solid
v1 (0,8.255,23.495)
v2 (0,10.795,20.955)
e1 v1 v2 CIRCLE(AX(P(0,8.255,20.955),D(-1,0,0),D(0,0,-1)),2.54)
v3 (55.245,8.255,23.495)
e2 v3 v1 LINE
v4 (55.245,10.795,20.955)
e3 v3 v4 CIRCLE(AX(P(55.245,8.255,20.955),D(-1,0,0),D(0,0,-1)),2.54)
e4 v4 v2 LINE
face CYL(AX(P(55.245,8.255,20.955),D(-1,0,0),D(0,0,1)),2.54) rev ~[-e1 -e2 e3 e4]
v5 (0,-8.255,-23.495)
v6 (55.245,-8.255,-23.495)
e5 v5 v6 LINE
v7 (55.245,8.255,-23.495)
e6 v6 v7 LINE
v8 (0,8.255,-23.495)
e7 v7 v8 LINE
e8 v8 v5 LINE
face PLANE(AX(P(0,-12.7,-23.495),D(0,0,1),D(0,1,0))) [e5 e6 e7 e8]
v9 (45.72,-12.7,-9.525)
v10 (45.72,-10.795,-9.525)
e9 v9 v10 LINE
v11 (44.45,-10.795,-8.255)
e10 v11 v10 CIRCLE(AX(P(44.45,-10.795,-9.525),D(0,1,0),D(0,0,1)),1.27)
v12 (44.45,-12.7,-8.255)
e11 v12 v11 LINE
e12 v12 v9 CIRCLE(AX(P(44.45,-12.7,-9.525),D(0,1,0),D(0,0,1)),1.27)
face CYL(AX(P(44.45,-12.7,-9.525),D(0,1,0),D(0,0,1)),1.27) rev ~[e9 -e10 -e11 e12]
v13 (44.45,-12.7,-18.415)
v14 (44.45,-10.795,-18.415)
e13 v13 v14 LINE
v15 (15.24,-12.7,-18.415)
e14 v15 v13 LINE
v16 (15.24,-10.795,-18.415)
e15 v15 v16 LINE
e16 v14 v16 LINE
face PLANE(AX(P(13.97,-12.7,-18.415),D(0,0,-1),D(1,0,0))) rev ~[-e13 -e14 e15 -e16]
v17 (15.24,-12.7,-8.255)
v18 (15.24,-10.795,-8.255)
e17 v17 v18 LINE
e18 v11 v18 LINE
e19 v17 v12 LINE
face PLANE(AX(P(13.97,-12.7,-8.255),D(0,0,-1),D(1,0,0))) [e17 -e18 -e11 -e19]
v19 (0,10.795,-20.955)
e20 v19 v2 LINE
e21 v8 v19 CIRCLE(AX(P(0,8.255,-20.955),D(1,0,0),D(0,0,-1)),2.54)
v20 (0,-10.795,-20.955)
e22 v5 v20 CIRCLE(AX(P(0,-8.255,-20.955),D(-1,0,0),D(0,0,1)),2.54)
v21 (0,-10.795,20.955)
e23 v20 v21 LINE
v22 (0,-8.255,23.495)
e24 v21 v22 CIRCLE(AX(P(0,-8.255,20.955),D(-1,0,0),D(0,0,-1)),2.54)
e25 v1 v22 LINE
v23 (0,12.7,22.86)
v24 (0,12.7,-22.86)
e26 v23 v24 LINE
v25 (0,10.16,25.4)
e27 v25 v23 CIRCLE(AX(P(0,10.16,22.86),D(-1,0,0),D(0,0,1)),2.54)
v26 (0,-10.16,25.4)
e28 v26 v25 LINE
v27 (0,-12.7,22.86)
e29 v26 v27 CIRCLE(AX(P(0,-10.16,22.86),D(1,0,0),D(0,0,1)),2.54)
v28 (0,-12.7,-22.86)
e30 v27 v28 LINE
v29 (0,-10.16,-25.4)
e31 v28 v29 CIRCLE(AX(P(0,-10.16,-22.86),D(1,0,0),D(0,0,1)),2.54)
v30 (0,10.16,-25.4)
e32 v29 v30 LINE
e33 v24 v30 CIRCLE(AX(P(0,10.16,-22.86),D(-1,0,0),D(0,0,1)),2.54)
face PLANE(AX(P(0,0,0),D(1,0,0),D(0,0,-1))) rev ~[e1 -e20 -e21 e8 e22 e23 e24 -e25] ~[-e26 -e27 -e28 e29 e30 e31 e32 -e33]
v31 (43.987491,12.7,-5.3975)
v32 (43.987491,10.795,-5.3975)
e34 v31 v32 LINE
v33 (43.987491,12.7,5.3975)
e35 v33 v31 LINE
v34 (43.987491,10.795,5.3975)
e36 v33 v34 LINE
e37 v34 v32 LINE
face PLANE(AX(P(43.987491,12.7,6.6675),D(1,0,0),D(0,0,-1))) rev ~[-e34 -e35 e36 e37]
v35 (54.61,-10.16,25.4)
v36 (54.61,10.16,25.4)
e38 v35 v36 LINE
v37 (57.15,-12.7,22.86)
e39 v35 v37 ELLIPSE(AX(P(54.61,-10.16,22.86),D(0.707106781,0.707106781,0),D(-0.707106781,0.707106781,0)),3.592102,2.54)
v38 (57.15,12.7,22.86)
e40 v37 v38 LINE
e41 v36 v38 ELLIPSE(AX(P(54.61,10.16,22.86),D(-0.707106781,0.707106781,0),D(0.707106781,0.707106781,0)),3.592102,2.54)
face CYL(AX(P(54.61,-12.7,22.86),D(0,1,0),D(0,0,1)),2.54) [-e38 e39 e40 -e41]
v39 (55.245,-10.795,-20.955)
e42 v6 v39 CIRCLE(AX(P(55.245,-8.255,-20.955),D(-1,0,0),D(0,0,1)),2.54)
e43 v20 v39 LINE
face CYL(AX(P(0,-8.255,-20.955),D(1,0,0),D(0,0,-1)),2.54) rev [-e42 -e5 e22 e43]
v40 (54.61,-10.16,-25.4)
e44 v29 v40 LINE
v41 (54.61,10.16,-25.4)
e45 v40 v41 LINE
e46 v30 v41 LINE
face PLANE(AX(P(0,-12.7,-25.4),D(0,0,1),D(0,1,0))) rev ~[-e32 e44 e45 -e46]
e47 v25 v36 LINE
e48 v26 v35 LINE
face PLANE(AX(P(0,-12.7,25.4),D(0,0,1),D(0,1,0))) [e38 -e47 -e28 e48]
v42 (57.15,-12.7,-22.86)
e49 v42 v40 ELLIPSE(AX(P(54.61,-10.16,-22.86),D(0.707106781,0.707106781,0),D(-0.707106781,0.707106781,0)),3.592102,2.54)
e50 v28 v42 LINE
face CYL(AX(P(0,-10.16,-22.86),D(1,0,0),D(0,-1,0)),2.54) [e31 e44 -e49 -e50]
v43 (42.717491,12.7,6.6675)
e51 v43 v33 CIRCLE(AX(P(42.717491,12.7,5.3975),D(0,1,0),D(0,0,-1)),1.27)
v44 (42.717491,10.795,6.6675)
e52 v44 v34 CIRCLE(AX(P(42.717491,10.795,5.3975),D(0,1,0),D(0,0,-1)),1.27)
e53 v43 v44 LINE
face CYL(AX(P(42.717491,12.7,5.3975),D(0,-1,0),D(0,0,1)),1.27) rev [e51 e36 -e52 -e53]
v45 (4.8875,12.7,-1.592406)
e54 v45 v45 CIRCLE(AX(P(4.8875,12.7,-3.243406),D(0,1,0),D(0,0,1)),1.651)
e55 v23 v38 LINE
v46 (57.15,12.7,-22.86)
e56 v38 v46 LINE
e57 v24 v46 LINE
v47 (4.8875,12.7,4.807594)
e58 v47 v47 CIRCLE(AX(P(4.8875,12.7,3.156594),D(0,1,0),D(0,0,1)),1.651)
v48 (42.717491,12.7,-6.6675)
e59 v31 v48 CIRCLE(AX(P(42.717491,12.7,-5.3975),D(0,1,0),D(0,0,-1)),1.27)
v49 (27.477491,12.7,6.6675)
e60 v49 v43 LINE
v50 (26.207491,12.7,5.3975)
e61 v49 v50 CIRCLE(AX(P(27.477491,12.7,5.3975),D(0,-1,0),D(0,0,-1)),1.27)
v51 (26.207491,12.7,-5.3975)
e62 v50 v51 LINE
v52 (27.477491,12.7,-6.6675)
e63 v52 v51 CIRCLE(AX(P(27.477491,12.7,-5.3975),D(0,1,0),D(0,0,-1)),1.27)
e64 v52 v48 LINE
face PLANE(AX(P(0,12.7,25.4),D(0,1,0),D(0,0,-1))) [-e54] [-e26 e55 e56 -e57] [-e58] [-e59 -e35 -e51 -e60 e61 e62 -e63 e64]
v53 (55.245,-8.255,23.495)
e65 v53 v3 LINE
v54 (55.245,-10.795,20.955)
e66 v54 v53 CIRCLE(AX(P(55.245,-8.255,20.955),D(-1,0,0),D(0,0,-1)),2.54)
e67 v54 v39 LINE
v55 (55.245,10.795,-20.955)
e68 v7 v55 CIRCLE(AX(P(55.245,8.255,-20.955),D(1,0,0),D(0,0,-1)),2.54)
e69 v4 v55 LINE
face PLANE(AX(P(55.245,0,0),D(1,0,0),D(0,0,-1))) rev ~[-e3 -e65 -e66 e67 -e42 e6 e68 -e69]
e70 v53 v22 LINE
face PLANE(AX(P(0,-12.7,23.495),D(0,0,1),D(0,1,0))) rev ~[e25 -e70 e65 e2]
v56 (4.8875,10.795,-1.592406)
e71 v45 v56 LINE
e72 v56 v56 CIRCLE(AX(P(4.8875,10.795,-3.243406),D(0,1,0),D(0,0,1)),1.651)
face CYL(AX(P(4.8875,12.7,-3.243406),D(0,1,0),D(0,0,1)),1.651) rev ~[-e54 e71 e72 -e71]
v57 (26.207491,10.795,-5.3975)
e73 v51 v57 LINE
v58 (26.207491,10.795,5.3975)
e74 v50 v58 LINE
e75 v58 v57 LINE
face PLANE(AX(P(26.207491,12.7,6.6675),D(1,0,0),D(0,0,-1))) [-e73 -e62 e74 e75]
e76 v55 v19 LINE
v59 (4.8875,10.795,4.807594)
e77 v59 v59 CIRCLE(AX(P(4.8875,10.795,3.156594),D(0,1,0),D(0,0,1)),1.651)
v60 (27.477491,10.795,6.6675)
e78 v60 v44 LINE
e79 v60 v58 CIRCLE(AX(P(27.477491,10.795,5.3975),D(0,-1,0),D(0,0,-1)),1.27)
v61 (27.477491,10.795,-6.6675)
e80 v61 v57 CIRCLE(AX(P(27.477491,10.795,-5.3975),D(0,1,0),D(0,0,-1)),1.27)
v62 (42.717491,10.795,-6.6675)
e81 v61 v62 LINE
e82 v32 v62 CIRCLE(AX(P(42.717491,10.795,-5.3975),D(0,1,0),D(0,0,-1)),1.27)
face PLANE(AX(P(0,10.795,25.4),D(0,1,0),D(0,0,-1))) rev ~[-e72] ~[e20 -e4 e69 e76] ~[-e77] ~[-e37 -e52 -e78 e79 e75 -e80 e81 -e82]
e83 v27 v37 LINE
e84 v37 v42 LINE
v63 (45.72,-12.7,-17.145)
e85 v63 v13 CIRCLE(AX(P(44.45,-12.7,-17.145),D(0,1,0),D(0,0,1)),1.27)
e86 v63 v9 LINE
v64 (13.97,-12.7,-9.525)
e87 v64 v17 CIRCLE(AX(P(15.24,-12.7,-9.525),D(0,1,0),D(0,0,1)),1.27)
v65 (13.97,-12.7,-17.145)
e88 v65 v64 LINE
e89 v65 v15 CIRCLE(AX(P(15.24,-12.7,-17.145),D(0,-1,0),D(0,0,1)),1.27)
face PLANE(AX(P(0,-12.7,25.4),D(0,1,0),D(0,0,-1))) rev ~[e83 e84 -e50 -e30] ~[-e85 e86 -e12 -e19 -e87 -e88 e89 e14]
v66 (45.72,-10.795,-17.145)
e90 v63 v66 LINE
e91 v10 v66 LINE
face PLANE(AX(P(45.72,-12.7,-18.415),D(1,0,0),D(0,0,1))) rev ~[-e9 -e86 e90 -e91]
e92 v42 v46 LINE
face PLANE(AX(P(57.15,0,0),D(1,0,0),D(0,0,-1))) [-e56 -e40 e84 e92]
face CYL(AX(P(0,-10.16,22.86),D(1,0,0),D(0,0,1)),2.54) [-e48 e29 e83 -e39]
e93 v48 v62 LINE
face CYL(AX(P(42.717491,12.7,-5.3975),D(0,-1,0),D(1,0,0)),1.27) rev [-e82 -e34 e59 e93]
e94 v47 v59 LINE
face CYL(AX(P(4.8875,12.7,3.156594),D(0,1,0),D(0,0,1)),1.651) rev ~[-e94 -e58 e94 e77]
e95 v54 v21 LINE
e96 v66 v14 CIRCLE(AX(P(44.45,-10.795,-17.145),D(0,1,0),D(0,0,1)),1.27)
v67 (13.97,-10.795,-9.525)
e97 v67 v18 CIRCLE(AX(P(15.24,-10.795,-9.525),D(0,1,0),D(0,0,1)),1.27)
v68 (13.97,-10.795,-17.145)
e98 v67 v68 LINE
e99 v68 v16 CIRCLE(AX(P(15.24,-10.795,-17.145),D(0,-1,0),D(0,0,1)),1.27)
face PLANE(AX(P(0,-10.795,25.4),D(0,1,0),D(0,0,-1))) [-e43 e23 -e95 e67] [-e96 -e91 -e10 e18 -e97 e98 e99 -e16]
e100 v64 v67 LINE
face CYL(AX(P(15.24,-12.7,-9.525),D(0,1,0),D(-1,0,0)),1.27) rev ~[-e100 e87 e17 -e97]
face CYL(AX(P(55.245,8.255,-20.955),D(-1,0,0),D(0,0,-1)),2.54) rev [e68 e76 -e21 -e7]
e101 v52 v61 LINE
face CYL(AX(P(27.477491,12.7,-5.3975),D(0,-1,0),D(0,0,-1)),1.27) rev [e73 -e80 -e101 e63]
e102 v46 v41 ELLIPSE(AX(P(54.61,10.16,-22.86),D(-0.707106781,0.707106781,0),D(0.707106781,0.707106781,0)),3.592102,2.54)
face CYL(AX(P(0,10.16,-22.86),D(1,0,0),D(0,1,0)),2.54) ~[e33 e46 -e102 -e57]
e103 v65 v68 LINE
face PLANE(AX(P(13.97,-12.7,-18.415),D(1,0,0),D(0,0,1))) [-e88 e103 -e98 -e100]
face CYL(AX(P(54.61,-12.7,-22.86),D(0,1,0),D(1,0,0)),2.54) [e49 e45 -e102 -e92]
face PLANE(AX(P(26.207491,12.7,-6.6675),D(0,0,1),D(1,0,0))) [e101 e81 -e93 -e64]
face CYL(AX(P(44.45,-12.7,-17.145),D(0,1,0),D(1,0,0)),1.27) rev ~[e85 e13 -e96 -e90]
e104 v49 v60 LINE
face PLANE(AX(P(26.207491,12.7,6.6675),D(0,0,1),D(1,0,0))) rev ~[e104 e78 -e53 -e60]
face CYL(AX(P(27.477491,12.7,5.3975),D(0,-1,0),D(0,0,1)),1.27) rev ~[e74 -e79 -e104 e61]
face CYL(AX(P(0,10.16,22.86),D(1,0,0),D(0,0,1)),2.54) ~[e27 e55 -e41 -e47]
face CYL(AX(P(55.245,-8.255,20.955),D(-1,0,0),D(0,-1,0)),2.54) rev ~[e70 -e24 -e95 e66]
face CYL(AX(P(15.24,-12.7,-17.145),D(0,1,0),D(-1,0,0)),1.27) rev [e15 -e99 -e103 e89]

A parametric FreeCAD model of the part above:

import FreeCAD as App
import Part
import Sketcher
from FreeCAD import Vector
Q = App.Units.Quantity


def edges_at(feature, points):
    """Names of the edges that pass closest to the given points."""
    edges = feature.Shape.Edges
    near = lambda p: min(range(len(edges)), key=lambda i: edges[i].distToShape(Part.Vertex(*p))[0])
    return sorted({f"Edge{near(p) + 1}" for p in points})


def faces_at(feature, points):
    """Names of the faces that lie closest to the given points."""
    faces = feature.Shape.Faces
    near = lambda p: min(range(len(faces)), key=lambda i: faces[i].distToShape(Part.Vertex(*p))[0])
    return sorted({f"Face{near(p) + 1}" for p in points})


def add_polygon(sketch, points):
    """Adds a closed chain of lines whose ends are joined by coincident constraints."""
    first, n = sketch.GeometryCount, len(points)
    for a, b in zip(points, points[1:] + points[:1]):
        sketch.addGeometry(Part.LineSegment(App.Vector(*a, 0), App.Vector(*b, 0)), False)
    for i in range(n):
        sketch.addConstraint(Sketcher.Constraint("Coincident", first + i, 2, first + (i + 1) % n, 1))

doc = App.newDocument("Part")
body = doc.addObject("PartDesign::Body", "Body")

sketch1 = body.newObject("Sketcher::SketchObject", "Sketch")
sketch1.AttachmentSupport = (doc.getObject("YZ_Plane"), [""])
sketch1.MapMode = "FlatFace"
add_polygon(sketch1, [(12.7, 25.4), (-12.7, 25.4), (-12.7, -25.4), (12.7, -25.4)])
sketch1.addConstraint(Sketcher.Constraint("Horizontal", 0))
sketch1.addConstraint(Sketcher.Constraint("Vertical", 1))
sketch1.addConstraint(Sketcher.Constraint("Horizontal", 2))
sketch1.addConstraint(Sketcher.Constraint("Vertical", 3))
sketch1.addConstraint(Sketcher.Constraint("Symmetric", 0, 2, 2, 2, -1, 1))
sketch1.addConstraint(Sketcher.Constraint("DistanceX", 0, 2, 0, 1, Q("1 in")))
sketch1.addConstraint(Sketcher.Constraint("DistanceY", 1, 2, 1, 1, Q("2 in")))
pad1 = body.newObject("PartDesign::Pad", "Pad")
pad1.Profile = sketch1
pad1.Length = Q("2.25 in")
doc.recompute()

thickness = body.newObject("PartDesign::Thickness", "Thickness")
thickness.Base = (pad1, faces_at(pad1, [(0, 0, 0)]))
thickness.Value = Q("0.075 in")
thickness.Reversed = True
thickness.Join = "Intersection"

sketch2 = body.newObject("Sketcher::SketchObject", "Sketch001")
sketch2.AttachmentSupport = (doc.getObject("XZ_Plane"), [""])
sketch2.MapMode = "FlatFace"
sketch2.AttachmentOffset = App.Placement(Vector(0, 0, -0.5 * 25.4), App.Rotation())
add_polygon(sketch2, [(26.207491, -6.6675), (26.207491, 6.6675), (43.987491, 6.6675), (43.987491, -6.6675)])
sketch2.addConstraint(Sketcher.Constraint("Vertical", 0))
sketch2.addConstraint(Sketcher.Constraint("Horizontal", 1))
sketch2.addConstraint(Sketcher.Constraint("Vertical", 2))
sketch2.addConstraint(Sketcher.Constraint("Horizontal", 3))
sketch2.addConstraint(Sketcher.Constraint("DistanceX", 1, 1, 1, 2, Q("0.7 in")))
sketch2.addConstraint(Sketcher.Constraint("DistanceY", 0, 1, 0, 2, Q("0.525 in")))
sketch2.addConstraint(Sketcher.Constraint("DistanceY", -1, 1, 0, 2, Q("0.2625 in")))
sketch2.addConstraint(Sketcher.Constraint("DistanceX", -1, 1, 0, 2, 26.207491))
pocket1 = body.newObject("PartDesign::Pocket", "Pocket")
pocket1.Profile = sketch2
pocket1.Length = Q("0.5 in")
pocket1.Reversed = True

sketch3 = body.newObject("Sketcher::SketchObject", "Sketch002")
sketch3.AttachmentSupport = (doc.getObject("XZ_Plane"), [""])
sketch3.MapMode = "FlatFace"
sketch3.AttachmentOffset = App.Placement(Vector(0, 0, 0.5 * 25.4), App.Rotation())
add_polygon(sketch3, [(13.97, -8.255), (13.97, -18.415), (45.72, -18.415), (45.72, -8.255)])
sketch3.addConstraint(Sketcher.Constraint("Vertical", 0))
sketch3.addConstraint(Sketcher.Constraint("Horizontal", 1))
sketch3.addConstraint(Sketcher.Constraint("Vertical", 2))
sketch3.addConstraint(Sketcher.Constraint("Horizontal", 3))
sketch3.addConstraint(Sketcher.Constraint("DistanceY", 0, 2, 0, 1, Q("0.4 in")))
sketch3.addConstraint(Sketcher.Constraint("DistanceX", 1, 1, 1, 2, Q("1.25 in")))
sketch3.addConstraint(Sketcher.Constraint("DistanceX", -1, 1, 1, 2, Q("1.8 in")))
sketch3.addConstraint(Sketcher.Constraint("DistanceY", 0, 2, -1, 1, Q("0.725 in")))
pocket2 = body.newObject("PartDesign::Pocket", "Pocket001")
pocket2.Profile = sketch3
pocket2.Length = Q("0.5 in")
doc.recompute()

fillet = body.newObject("PartDesign::Fillet", "Fillet")
fillet.Base = (pocket2, edges_at(pocket2, [
    (57.15, 0, 25.4),
    (27.622, -10.795, -23.495),
    (27.622, 10.795, -23.495),
    (27.622, 10.795, 23.495),
    (27.622, -10.795, 23.495),
    (57.15, 0, -25.4),
    (28.575, -12.7, -25.4),
    (28.575, -12.7, 25.4),
    (28.575, 12.7, 25.4),
    (28.575, 12.7, -25.4),
]))
fillet.Radius = Q("0.1 in")
doc.recompute()

fillet2 = body.newObject("PartDesign::Fillet", "Fillet001")
fillet2.Base = (fillet, edges_at(fillet, [
    (26.207, 11.748, 6.668),
    (26.207, 11.748, -6.668),
    (43.987, 11.748, -6.668),
    (43.987, 11.748, 6.668),
]))
fillet2.Radius = Q("0.05 in")
doc.recompute()

fillet3 = body.newObject("PartDesign::Fillet", "Fillet002")
fillet3.Base = (fillet2, edges_at(fillet2, [
    (45.72, -11.748, -8.255),
    (45.72, -11.748, -18.415),
    (13.97, -11.748, -18.415),
    (13.97, -11.748, -8.255),
]))
fillet3.Radius = Q("0.05 in")

sketch4 = body.newObject("Sketcher::SketchObject", "Sketch003")
sketch4.AttachmentSupport = (doc.getObject("XZ_Plane"), [""])
sketch4.MapMode = "FlatFace"
sketch4.AttachmentOffset = App.Placement(Vector(0, 0, -0.5 * 25.4), App.Rotation())
sketch4.addGeometry(Part.Circle(Vector(4.8875, -3.243406, 0), Vector(0, 0, 1), 1.651), False)
sketch4.addGeometry(Part.Circle(Vector(4.8875, 3.156594, 0), Vector(0, 0, 1), 1.651), False)
sketch4.addConstraint(Sketcher.Constraint("Equal", 0, 1))
sketch4.addConstraint(Sketcher.Constraint("Vertical", 0, 3, 1, 3))
sketch4.addConstraint(Sketcher.Constraint("Diameter", 0, Q("0.13 in")))
sketch4.addConstraint(Sketcher.Constraint("DistanceX", -1, 1, 0, 3, 4.8875))
sketch4.addConstraint(Sketcher.Constraint("DistanceY", 0, 3, 1, 3, 6.4))
sketch4.addConstraint(Sketcher.Constraint("DistanceY", 0, 3, -1, 1, 3.243406))
pocket3 = body.newObject("PartDesign::Pocket", "Pocket002")
pocket3.Profile = sketch4
pocket3.Length = Q("0.1 in")
pocket3.Reversed = True

doc.recompute()
